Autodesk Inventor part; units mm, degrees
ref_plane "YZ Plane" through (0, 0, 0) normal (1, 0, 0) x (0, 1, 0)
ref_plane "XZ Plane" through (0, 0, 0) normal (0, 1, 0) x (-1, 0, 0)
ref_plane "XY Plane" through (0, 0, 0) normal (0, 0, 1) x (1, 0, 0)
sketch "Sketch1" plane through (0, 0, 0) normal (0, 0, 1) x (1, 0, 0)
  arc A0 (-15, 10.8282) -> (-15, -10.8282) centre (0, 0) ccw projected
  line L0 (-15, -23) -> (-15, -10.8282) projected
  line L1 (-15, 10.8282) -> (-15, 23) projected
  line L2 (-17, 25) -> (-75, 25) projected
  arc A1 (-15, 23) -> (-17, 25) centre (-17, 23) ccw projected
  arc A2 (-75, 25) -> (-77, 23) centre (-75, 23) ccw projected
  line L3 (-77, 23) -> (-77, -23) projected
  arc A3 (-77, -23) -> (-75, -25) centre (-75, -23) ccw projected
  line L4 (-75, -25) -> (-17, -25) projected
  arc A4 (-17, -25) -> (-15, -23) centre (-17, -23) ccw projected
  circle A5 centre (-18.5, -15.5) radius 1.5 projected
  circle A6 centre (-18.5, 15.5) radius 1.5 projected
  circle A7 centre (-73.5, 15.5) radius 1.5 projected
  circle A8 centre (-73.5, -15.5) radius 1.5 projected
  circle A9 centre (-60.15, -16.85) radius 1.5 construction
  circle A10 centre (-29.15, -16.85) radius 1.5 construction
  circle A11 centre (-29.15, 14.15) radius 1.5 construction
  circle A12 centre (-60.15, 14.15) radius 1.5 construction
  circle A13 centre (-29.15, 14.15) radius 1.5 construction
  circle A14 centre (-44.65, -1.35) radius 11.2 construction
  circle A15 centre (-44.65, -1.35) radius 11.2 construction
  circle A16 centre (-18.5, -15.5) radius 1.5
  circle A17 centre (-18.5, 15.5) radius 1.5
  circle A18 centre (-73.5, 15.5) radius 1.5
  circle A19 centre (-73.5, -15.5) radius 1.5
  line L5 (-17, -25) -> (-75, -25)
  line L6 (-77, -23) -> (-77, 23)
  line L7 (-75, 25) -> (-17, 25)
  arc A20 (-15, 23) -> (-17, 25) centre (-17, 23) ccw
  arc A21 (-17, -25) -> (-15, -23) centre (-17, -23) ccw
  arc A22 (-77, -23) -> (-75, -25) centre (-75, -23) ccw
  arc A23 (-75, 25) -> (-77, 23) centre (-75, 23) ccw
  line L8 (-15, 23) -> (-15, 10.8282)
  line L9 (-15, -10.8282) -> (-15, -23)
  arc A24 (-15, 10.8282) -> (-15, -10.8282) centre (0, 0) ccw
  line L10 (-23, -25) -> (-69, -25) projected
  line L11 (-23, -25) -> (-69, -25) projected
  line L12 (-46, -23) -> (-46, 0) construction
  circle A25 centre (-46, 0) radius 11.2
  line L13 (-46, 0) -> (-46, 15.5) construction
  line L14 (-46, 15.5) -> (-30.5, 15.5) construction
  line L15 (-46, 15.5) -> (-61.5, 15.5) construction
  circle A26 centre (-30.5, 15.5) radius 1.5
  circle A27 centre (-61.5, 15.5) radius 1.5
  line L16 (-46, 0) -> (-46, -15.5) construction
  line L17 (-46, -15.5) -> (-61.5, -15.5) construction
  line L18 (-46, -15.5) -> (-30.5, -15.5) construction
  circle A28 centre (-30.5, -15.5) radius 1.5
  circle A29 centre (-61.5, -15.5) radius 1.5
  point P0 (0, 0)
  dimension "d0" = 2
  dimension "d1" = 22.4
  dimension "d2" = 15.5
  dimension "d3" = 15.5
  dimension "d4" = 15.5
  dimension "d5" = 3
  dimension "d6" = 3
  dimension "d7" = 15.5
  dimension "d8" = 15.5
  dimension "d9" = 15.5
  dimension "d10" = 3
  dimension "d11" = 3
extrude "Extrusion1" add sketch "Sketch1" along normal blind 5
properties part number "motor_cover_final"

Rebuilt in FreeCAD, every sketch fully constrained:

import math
import FreeCAD as App
import Part
import Sketcher
from FreeCAD import Vector

doc = App.newDocument("Part")
params = doc.addObject("Spreadsheet::Sheet", "Params")
for row, (alias, value) in enumerate([
    ("sketch1_diameter", "3 mm"),
    ("sketch1_radius", "2 mm"),
    ("sketch1_diameter2", "22.4 mm"),
    ("sketch1_radius2", "18.5 mm"),
    ("sketch1_height", "46 mm"),
    ("pad1_length", "5 mm"),
], start=1):
    params.set(f"A{row}", alias)
    params.set(f"B{row}", "=" + value)
    params.setAlias(f"B{row}", alias)

body = doc.addObject("PartDesign::Body", "Body")

sketch1 = doc.addObject("Sketcher::SketchObject", "Sketch")
body.addObject(sketch1)
sketch1.AttachmentSupport = (doc.XY_Plane, [""])
sketch1.MapMode = "FlatFace"
sketch1.addGeometry([
    Part.ArcOfCircle(Part.Circle(Vector(0, 0, 0), Vector(0, 0, 1), 18.499998), math.radians(144.175235), math.radians(215.824765)),
    Part.LineSegment(Vector(-15, 10.8282, 0), Vector(-15, 23, 0)),
    Part.ArcOfCircle(Part.Circle(Vector(-17, 23, 0), Vector(0, 0, 1), 2), math.radians(0), math.radians(90)),
    Part.LineSegment(Vector(-17, 25, 0), Vector(-75, 25, 0)),
    Part.ArcOfCircle(Part.Circle(Vector(-75, 23, 0), Vector(0, 0, 1), 2), math.radians(90), math.radians(180)),
    Part.LineSegment(Vector(-77, 23, 0), Vector(-77, -23, 0)),
    Part.ArcOfCircle(Part.Circle(Vector(-75, -23, 0), Vector(0, 0, 1), 2), math.radians(180), math.radians(270)),
    Part.LineSegment(Vector(-75, -25, 0), Vector(-17, -25, 0)),
    Part.ArcOfCircle(Part.Circle(Vector(-17, -23, 0), Vector(0, 0, 1), 2), math.radians(-90), math.radians(0)),
    Part.LineSegment(Vector(-15, -23, 0), Vector(-15, -10.8282, 0)),
    Part.Circle(Vector(-73.5, -15.5, 0), Vector(0, 0, 1), 1.5),
    Part.Circle(Vector(-61.5, -15.5, 0), Vector(0, 0, 1), 1.5),
    Part.Circle(Vector(-30.5, -15.5, 0), Vector(0, 0, 1), 1.5),
    Part.Circle(Vector(-18.5, -15.5, 0), Vector(0, 0, 1), 1.5),
    Part.Circle(Vector(-73.5, 15.5, 0), Vector(0, 0, 1), 1.5),
    Part.Circle(Vector(-61.5, 15.5, 0), Vector(0, 0, 1), 1.5),
    Part.Circle(Vector(-46, 0, 0), Vector(0, 0, 1), 11.2),
    Part.Circle(Vector(-30.5, 15.5, 0), Vector(0, 0, 1), 1.5),
    Part.Circle(Vector(-18.5, 15.5, 0), Vector(0, 0, 1), 1.5),
], False)
sketch1.addConstraint([
    Sketcher.Constraint("Coincident", 0, 1, 1, 1),
    Sketcher.Constraint("Tangent", 1, 2, 2, 1),
    Sketcher.Constraint("Tangent", 2, 2, 3, 1),
    Sketcher.Constraint("Tangent", 3, 2, 4, 1),
    Sketcher.Constraint("Tangent", 4, 2, 5, 1),
    Sketcher.Constraint("Tangent", 5, 2, 6, 1),
    Sketcher.Constraint("Tangent", 6, 2, 7, 1),
    Sketcher.Constraint("Tangent", 7, 2, 8, 1),
    Sketcher.Constraint("Tangent", 8, 2, 9, 1),
    Sketcher.Constraint("Coincident", 9, 2, 0, 2),
    Sketcher.Constraint("Vertical", 1),
    Sketcher.Constraint("Horizontal", 3),
    Sketcher.Constraint("Vertical", 5),
    Sketcher.Constraint("Horizontal", 7),
    Sketcher.Constraint("Vertical", 9),
    Sketcher.Constraint("Coincident", 0, 3, -1, 1),
    Sketcher.Constraint("Equal", 2, 4),
    Sketcher.Constraint("Equal", 4, 6),
    Sketcher.Constraint("Equal", 6, 8),
    Sketcher.Constraint("Equal", 10, 11),
    Sketcher.Constraint("Equal", 11, 12),
    Sketcher.Constraint("Equal", 12, 13),
    Sketcher.Constraint("Equal", 13, 14),
    Sketcher.Constraint("Equal", 14, 15),
    Sketcher.Constraint("Equal", 15, 17),
    Sketcher.Constraint("Equal", 17, 18),
    Sketcher.Constraint("Symmetric", 2, 3, 8, 3, -1),
    Sketcher.Constraint("Symmetric", 10, 3, 14, 3, -1),
    Sketcher.Constraint("Symmetric", 11, 3, 15, 3, -1),
    Sketcher.Constraint("Symmetric", 12, 3, 17, 3, -1),
    Sketcher.Constraint("Symmetric", 13, 3, 18, 3, -1),
    Sketcher.Constraint("PointOnObject", 16, 3, -1),
    Sketcher.Constraint("Horizontal", 10, 3, 11, 3),
    Sketcher.Constraint("Horizontal", 11, 3, 12, 3),
    Sketcher.Constraint("Horizontal", 12, 3, 13, 3),
    Sketcher.Constraint("Diameter", 10, 3.0),
    Sketcher.Constraint("Radius", 2, 2.0),
    Sketcher.Constraint("Diameter", 16, 22.4),
    Sketcher.Constraint("DistanceY", 10, 3, -1, 1, 15.5),
    Sketcher.Constraint("Radius", 0, 18.5),
    Sketcher.Constraint("DistanceX", 11, 3, 16, 3, 15.5),
    Sketcher.Constraint("DistanceX", 16, 3, 12, 3, 15.5),
    Sketcher.Constraint("DistanceX", 17, 3, 0, 1, 15.5),
    Sketcher.Constraint("DistanceX", 4, 2, 15, 3, 15.5),
    Sketcher.Constraint("DistanceY", 5, 2, 5, 1, 46.0),
    Sketcher.Constraint("DistanceX", 2, 3, -1, 1, 17.0),
    Sketcher.Constraint("DistanceX", 10, 3, 11, 3, 12.0),
    Sketcher.Constraint("DistanceX", 12, 3, 13, 3, 12.0),
])
sketch1.setExpression("Constraints[35]", "Params.sketch1_diameter")
sketch1.setExpression("Constraints[36]", "Params.sketch1_radius")
sketch1.setExpression("Constraints[37]", "Params.sketch1_diameter2")
sketch1.setExpression("Constraints[39]", "Params.sketch1_radius2")
sketch1.setExpression("Constraints[44]", "Params.sketch1_height")
pad1 = doc.addObject("PartDesign::Pad", "Pad")
body.addObject(pad1)
pad1.Profile = sketch1
pad1.setExpression("Length", "Params.pad1_length")

doc.recompute()
